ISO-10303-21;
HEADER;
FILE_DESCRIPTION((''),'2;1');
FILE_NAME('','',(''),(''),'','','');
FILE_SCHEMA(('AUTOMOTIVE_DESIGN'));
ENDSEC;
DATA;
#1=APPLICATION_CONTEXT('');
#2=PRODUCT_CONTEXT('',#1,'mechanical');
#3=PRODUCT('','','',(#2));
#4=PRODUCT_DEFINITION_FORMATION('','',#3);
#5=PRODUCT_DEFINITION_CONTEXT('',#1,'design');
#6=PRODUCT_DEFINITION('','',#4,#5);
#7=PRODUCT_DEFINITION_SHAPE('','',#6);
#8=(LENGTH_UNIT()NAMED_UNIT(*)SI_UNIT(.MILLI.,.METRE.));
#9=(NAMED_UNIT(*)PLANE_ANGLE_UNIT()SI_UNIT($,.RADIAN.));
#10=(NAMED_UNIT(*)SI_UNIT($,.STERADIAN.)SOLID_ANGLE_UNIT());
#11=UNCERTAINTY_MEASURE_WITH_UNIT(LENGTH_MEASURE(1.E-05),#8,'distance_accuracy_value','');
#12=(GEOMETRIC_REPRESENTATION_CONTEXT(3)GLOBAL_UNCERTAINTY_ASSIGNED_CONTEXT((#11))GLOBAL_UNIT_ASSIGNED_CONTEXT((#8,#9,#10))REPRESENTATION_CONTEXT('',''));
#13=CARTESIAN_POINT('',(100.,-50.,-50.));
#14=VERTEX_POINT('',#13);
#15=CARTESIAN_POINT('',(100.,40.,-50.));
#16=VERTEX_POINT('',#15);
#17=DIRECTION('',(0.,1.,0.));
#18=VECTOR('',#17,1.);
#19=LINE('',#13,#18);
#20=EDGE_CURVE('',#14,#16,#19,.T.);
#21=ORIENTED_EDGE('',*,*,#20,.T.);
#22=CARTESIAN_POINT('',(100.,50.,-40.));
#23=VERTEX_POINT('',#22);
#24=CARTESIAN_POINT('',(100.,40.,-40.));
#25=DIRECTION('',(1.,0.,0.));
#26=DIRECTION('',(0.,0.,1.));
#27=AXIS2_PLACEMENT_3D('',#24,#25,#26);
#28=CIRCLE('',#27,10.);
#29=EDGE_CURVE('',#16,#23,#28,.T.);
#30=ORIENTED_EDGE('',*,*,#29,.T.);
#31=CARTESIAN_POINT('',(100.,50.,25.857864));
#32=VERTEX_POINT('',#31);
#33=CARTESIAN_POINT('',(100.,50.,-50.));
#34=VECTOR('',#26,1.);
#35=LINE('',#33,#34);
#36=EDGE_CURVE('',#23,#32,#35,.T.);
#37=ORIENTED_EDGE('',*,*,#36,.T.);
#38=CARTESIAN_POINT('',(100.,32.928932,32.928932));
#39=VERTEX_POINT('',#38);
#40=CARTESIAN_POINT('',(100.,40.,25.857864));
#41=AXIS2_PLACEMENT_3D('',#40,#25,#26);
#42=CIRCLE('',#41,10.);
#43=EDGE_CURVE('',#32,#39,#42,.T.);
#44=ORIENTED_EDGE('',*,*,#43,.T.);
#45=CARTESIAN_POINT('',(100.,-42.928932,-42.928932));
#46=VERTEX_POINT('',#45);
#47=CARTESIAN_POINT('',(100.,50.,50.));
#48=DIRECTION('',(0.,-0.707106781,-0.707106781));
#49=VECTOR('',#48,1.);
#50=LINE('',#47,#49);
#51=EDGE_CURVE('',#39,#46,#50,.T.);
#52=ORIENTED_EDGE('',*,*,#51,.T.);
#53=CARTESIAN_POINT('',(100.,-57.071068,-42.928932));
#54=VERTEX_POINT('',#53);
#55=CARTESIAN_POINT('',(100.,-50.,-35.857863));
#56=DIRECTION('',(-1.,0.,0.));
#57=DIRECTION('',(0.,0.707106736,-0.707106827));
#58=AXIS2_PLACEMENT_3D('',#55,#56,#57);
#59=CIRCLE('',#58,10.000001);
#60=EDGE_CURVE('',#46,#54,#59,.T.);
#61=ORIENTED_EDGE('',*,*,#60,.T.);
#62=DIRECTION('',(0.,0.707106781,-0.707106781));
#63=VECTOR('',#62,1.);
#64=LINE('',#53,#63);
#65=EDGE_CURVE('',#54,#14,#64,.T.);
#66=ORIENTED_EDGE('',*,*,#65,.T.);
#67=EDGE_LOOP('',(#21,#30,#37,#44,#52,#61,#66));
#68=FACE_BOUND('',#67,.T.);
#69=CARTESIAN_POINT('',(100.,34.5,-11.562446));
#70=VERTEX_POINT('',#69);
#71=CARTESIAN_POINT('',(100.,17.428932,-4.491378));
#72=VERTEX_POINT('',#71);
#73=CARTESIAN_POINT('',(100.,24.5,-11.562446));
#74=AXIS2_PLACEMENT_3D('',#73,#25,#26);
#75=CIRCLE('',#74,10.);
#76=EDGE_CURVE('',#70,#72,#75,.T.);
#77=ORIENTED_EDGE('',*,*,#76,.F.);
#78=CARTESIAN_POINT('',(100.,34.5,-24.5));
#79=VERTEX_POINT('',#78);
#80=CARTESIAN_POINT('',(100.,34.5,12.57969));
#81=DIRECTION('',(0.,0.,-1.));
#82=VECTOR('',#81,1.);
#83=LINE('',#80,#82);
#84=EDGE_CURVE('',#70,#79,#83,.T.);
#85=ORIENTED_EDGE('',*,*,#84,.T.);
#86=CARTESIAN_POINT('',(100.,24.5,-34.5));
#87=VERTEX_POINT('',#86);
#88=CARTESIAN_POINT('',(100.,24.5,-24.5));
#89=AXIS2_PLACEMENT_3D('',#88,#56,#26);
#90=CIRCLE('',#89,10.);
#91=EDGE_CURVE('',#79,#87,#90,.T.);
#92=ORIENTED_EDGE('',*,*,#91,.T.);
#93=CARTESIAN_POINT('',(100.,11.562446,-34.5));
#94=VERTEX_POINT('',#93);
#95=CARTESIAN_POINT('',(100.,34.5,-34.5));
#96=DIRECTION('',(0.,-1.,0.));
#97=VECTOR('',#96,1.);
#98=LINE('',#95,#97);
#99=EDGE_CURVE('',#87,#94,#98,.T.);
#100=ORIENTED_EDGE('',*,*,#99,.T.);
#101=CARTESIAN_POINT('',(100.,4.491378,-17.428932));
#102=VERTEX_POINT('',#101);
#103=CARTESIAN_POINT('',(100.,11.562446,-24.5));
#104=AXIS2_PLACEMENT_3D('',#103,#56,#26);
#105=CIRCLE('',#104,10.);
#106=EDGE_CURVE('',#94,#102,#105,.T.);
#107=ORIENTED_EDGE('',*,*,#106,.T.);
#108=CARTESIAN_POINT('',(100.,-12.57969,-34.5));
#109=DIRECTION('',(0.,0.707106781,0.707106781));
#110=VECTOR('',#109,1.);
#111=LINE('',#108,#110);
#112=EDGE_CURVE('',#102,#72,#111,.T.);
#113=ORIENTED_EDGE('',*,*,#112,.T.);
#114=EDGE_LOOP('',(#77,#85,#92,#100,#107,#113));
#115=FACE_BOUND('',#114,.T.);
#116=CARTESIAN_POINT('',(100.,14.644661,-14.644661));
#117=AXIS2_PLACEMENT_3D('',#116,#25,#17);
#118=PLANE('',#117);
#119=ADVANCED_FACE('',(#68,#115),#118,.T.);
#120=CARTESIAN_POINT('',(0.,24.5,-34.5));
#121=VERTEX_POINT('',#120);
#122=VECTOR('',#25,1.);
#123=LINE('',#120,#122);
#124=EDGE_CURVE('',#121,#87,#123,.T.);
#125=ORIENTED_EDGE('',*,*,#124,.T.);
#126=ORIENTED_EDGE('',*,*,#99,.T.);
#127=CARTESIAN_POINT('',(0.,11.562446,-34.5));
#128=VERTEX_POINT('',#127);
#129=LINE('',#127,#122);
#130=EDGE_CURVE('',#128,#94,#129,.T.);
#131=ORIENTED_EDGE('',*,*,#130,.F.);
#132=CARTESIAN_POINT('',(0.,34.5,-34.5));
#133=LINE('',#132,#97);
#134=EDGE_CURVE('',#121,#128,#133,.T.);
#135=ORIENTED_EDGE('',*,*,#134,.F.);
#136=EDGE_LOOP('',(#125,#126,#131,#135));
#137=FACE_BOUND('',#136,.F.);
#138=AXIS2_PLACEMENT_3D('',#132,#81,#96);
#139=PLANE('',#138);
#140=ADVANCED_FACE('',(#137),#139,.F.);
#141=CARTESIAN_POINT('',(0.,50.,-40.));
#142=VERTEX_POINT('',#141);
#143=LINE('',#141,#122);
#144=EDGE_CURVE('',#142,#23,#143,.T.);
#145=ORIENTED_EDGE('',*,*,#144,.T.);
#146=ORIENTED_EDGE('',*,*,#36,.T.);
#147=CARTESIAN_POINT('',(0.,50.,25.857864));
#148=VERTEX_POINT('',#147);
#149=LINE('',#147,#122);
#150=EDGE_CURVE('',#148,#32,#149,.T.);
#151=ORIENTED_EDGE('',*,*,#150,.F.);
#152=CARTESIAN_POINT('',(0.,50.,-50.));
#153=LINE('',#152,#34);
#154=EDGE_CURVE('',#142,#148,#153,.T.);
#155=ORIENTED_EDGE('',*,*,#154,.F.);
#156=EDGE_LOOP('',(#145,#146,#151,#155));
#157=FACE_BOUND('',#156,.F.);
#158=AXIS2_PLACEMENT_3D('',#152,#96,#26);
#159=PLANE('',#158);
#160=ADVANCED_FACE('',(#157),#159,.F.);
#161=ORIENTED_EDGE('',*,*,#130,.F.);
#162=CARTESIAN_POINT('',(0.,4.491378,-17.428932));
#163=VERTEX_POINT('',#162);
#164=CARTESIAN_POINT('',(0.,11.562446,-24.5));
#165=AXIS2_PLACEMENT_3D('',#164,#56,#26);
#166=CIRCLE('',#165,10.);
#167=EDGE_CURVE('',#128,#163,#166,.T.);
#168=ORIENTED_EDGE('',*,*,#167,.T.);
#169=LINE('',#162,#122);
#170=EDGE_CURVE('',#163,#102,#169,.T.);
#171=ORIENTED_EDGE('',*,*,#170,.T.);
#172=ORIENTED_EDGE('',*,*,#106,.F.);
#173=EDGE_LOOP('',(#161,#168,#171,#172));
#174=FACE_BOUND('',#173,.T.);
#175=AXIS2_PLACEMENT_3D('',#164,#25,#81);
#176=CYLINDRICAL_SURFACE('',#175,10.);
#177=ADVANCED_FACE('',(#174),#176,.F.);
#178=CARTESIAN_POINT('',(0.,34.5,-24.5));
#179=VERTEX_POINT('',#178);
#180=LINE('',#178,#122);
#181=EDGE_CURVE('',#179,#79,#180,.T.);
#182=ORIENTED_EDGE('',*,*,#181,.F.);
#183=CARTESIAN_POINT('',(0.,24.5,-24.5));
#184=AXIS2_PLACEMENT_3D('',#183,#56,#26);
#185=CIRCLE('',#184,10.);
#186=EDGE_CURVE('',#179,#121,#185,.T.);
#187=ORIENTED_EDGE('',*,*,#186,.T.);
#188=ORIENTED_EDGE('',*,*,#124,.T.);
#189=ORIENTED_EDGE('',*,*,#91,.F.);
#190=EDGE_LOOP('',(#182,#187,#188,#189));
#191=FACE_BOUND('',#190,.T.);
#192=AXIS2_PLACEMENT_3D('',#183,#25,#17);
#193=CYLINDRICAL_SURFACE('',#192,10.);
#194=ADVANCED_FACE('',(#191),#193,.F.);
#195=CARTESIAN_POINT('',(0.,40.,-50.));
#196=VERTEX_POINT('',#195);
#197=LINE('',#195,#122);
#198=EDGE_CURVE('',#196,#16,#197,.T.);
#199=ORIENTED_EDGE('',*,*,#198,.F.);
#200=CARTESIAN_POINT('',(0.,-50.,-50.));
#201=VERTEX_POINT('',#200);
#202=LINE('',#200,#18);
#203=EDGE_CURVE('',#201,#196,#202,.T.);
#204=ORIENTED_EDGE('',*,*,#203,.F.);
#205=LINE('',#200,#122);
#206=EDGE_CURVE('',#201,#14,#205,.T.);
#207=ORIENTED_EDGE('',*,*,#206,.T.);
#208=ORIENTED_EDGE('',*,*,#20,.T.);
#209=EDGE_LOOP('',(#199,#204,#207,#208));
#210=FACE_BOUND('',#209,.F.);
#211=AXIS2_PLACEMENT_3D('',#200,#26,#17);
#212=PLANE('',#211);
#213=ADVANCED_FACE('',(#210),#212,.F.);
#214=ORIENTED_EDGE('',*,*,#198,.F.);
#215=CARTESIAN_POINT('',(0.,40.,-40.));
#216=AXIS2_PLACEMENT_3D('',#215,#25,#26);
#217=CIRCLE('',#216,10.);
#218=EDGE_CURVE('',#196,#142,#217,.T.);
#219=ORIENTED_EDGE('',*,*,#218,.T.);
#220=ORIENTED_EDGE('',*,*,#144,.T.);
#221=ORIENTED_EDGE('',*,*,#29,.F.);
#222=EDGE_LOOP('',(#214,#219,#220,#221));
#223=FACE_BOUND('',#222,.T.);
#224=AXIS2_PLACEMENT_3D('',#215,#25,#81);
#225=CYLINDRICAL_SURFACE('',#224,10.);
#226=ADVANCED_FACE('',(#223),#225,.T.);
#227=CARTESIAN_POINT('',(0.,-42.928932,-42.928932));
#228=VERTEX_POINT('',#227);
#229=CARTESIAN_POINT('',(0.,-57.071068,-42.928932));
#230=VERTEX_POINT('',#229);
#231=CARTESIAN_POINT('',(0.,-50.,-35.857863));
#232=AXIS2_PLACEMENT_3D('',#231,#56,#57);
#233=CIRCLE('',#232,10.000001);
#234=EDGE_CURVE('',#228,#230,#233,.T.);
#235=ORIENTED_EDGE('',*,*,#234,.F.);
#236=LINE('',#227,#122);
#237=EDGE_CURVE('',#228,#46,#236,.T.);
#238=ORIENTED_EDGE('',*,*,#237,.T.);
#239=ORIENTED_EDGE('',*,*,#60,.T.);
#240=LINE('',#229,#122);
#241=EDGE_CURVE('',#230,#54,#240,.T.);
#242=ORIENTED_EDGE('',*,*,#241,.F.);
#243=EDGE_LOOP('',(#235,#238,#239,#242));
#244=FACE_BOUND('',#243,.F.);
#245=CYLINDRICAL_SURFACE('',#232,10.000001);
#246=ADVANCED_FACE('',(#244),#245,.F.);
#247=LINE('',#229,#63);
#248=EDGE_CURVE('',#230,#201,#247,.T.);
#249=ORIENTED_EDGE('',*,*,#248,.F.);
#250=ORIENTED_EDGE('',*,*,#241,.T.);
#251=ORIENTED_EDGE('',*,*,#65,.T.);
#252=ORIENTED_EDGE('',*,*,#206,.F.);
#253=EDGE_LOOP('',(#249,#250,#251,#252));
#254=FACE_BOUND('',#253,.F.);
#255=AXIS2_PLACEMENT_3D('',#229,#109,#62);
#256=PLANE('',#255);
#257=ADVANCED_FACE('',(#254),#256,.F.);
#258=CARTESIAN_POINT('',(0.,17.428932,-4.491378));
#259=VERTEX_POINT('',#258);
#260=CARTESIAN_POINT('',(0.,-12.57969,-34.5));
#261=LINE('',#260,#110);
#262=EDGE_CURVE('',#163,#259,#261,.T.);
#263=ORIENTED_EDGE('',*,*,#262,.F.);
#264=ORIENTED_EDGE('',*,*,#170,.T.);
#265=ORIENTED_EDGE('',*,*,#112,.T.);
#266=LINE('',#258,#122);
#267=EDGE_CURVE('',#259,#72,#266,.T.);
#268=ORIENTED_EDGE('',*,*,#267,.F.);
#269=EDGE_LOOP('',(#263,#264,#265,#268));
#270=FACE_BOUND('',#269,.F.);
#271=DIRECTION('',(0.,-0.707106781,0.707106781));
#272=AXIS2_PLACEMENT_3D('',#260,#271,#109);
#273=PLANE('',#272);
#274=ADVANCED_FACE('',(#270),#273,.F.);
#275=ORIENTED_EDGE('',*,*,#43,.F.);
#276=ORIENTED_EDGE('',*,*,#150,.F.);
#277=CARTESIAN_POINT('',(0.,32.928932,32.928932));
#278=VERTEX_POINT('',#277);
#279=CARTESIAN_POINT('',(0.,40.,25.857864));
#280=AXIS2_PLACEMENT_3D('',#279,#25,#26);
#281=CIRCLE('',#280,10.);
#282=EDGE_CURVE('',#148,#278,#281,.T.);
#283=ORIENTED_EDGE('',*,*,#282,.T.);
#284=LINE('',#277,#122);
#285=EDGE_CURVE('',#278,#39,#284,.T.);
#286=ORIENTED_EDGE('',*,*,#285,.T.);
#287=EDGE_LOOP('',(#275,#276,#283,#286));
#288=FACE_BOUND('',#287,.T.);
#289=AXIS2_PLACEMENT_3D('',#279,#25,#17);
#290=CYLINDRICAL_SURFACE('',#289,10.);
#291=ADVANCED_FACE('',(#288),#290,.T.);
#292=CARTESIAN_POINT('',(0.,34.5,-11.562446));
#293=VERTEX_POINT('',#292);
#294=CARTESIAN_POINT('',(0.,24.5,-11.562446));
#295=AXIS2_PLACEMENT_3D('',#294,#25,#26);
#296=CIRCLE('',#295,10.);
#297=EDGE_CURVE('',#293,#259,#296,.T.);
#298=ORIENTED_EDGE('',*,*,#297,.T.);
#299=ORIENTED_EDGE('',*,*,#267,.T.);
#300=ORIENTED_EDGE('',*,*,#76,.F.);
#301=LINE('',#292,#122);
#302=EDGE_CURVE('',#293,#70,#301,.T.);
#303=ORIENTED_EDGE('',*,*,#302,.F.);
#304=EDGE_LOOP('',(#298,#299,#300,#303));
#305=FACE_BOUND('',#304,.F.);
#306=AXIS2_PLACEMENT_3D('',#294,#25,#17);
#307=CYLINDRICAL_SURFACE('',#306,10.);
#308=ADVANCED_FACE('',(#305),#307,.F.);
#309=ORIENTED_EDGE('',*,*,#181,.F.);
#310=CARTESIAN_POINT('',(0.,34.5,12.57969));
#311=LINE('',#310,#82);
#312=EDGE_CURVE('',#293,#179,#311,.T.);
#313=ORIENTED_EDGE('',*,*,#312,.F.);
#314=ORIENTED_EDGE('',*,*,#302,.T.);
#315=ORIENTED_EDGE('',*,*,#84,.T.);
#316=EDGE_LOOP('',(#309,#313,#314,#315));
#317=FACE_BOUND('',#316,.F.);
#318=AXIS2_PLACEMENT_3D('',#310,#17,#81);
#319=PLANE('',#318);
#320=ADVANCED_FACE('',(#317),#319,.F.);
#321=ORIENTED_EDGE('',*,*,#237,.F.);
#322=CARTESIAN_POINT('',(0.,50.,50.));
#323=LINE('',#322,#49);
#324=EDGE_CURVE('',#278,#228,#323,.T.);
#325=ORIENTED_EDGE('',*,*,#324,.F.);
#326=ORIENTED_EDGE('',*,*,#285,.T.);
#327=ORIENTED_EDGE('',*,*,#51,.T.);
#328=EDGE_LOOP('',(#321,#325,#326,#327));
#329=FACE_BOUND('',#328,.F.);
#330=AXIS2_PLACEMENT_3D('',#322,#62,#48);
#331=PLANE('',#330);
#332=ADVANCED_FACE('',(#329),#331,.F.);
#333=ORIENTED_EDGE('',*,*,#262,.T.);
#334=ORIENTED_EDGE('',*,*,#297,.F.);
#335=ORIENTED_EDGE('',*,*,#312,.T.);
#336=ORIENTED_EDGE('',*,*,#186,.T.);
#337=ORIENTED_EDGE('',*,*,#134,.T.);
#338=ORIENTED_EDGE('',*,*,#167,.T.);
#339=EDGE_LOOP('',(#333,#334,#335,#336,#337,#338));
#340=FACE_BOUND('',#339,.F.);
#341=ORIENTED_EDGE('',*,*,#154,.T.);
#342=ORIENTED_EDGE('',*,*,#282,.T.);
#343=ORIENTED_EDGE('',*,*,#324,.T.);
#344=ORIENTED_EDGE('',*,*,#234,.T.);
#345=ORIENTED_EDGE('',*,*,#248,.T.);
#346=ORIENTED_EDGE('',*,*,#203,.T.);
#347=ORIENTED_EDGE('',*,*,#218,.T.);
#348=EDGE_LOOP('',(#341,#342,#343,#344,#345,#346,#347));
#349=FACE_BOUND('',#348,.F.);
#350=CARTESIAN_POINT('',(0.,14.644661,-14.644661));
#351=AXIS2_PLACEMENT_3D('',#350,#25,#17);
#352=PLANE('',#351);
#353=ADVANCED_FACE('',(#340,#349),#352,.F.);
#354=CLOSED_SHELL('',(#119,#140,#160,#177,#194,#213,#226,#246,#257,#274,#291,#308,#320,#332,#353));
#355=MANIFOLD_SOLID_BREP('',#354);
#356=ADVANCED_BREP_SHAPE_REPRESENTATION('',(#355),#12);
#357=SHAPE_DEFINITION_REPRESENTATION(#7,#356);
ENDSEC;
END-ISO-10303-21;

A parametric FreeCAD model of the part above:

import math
import FreeCAD as App
import Part
import Sketcher
from FreeCAD import Vector


def edges_at(feature, points):
    """Names of the edges that pass closest to the given points."""
    edges = feature.Shape.Edges
    near = lambda p: min(range(len(edges)), key=lambda i: edges[i].distToShape(Part.Vertex(*p))[0])
    return sorted({f"Edge{near(p) + 1}" for p in points})


def add_polygon(sketch, points):
    """Adds a closed chain of lines whose ends are joined by coincident constraints."""
    first, n = sketch.GeometryCount, len(points)
    for a, b in zip(points, points[1:] + points[:1]):
        sketch.addGeometry(Part.LineSegment(App.Vector(*a, 0), App.Vector(*b, 0)), False)
    for i in range(n):
        sketch.addConstraint(Sketcher.Constraint("Coincident", first + i, 2, first + (i + 1) % n, 1))

doc = App.newDocument("Part")
body = doc.addObject("PartDesign::Body", "Body")

# Sketch on YZ plane
sketch1 = body.newObject("Sketcher::SketchObject", "Sketch")
sketch1.AttachmentSupport = (doc.getObject("YZ_Plane"), [""])
sketch1.MapMode = "FlatFace"
sketch1.addGeometry(Part.LineSegment(Vector(-50, -50, 0), Vector(50, -50, 0)), False)  # 0
sketch1.addGeometry(Part.LineSegment(Vector(50, -50, 0), Vector(50, 50, 0)), False)  # 1
sketch1.addGeometry(Part.LineSegment(Vector(50, 50, 0), Vector(-42.928932, -42.928932, 0)), False)  # 2
sketch1.addGeometry(Part.ArcOfCircle(Part.Circle(Vector(-50, -35.857863, 0), Vector(0, 0, 1), 10.000001), math.radians(-134.999996), math.radians(-45.000004)), False)  # 3
sketch1.addGeometry(Part.LineSegment(Vector(-57.071068, -42.928932, 0), Vector(-50, -50, 0)), False)  # 4
add_polygon(sketch1, [(34.5, 12.57969), (34.5, -34.5), (-12.57969, -34.5)])  # lines 5-7
sketch1.addConstraint([
    Sketcher.Constraint("Coincident", 0, 2, 1, 1),
    Sketcher.Constraint("Coincident", 1, 2, 2, 1),
    Sketcher.Constraint("Tangent", 2, 2, 3, 2),
    Sketcher.Constraint("Tangent", 3, 1, 4, 1),
    Sketcher.Constraint("Coincident", 4, 2, 0, 1),
    Sketcher.Constraint("Horizontal", 0),
    Sketcher.Constraint("Vertical", 1),
    Sketcher.Constraint("Vertical", 5),
    Sketcher.Constraint("Horizontal", 6),
    Sketcher.Constraint("Symmetric", 1, 2, 4, 2, -1, 1),
    Sketcher.Constraint("Perpendicular", 2, 4),
    Sketcher.Constraint("Perpendicular", 4, 7),
    Sketcher.Constraint("Horizontal", 2, 2, 3, 1),
    Sketcher.Constraint("Vertical", 3, 3, 4, 2),
    Sketcher.Constraint("Radius", 3, 10.000001),
    Sketcher.Constraint("DistanceX", 0, 1, 0, 2, 100.0),
    Sketcher.Constraint("DistanceX", -1, 1, 5, 2, 34.5),
    Sketcher.Constraint("DistanceY", 5, 2, -1, 1, 34.5),
    Sketcher.Constraint("DistanceX", 6, 2, 6, 1, 47.07969),
])
pad1 = body.newObject("PartDesign::Pad", "Pad")
pad1.Profile = sketch1
pad1.Length = 100
doc.recompute()

fillet = body.newObject("PartDesign::Fillet", "Fillet")
fillet.Base = (pad1, edges_at(pad1, [
    (50, 50, 50),
    (50, 34.5, 12.58),
    (50, 50, -50),
    (50, 34.5, -34.5),
    (50, -12.58, -34.5),
]))
fillet.Radius = 10

doc.recompute()
